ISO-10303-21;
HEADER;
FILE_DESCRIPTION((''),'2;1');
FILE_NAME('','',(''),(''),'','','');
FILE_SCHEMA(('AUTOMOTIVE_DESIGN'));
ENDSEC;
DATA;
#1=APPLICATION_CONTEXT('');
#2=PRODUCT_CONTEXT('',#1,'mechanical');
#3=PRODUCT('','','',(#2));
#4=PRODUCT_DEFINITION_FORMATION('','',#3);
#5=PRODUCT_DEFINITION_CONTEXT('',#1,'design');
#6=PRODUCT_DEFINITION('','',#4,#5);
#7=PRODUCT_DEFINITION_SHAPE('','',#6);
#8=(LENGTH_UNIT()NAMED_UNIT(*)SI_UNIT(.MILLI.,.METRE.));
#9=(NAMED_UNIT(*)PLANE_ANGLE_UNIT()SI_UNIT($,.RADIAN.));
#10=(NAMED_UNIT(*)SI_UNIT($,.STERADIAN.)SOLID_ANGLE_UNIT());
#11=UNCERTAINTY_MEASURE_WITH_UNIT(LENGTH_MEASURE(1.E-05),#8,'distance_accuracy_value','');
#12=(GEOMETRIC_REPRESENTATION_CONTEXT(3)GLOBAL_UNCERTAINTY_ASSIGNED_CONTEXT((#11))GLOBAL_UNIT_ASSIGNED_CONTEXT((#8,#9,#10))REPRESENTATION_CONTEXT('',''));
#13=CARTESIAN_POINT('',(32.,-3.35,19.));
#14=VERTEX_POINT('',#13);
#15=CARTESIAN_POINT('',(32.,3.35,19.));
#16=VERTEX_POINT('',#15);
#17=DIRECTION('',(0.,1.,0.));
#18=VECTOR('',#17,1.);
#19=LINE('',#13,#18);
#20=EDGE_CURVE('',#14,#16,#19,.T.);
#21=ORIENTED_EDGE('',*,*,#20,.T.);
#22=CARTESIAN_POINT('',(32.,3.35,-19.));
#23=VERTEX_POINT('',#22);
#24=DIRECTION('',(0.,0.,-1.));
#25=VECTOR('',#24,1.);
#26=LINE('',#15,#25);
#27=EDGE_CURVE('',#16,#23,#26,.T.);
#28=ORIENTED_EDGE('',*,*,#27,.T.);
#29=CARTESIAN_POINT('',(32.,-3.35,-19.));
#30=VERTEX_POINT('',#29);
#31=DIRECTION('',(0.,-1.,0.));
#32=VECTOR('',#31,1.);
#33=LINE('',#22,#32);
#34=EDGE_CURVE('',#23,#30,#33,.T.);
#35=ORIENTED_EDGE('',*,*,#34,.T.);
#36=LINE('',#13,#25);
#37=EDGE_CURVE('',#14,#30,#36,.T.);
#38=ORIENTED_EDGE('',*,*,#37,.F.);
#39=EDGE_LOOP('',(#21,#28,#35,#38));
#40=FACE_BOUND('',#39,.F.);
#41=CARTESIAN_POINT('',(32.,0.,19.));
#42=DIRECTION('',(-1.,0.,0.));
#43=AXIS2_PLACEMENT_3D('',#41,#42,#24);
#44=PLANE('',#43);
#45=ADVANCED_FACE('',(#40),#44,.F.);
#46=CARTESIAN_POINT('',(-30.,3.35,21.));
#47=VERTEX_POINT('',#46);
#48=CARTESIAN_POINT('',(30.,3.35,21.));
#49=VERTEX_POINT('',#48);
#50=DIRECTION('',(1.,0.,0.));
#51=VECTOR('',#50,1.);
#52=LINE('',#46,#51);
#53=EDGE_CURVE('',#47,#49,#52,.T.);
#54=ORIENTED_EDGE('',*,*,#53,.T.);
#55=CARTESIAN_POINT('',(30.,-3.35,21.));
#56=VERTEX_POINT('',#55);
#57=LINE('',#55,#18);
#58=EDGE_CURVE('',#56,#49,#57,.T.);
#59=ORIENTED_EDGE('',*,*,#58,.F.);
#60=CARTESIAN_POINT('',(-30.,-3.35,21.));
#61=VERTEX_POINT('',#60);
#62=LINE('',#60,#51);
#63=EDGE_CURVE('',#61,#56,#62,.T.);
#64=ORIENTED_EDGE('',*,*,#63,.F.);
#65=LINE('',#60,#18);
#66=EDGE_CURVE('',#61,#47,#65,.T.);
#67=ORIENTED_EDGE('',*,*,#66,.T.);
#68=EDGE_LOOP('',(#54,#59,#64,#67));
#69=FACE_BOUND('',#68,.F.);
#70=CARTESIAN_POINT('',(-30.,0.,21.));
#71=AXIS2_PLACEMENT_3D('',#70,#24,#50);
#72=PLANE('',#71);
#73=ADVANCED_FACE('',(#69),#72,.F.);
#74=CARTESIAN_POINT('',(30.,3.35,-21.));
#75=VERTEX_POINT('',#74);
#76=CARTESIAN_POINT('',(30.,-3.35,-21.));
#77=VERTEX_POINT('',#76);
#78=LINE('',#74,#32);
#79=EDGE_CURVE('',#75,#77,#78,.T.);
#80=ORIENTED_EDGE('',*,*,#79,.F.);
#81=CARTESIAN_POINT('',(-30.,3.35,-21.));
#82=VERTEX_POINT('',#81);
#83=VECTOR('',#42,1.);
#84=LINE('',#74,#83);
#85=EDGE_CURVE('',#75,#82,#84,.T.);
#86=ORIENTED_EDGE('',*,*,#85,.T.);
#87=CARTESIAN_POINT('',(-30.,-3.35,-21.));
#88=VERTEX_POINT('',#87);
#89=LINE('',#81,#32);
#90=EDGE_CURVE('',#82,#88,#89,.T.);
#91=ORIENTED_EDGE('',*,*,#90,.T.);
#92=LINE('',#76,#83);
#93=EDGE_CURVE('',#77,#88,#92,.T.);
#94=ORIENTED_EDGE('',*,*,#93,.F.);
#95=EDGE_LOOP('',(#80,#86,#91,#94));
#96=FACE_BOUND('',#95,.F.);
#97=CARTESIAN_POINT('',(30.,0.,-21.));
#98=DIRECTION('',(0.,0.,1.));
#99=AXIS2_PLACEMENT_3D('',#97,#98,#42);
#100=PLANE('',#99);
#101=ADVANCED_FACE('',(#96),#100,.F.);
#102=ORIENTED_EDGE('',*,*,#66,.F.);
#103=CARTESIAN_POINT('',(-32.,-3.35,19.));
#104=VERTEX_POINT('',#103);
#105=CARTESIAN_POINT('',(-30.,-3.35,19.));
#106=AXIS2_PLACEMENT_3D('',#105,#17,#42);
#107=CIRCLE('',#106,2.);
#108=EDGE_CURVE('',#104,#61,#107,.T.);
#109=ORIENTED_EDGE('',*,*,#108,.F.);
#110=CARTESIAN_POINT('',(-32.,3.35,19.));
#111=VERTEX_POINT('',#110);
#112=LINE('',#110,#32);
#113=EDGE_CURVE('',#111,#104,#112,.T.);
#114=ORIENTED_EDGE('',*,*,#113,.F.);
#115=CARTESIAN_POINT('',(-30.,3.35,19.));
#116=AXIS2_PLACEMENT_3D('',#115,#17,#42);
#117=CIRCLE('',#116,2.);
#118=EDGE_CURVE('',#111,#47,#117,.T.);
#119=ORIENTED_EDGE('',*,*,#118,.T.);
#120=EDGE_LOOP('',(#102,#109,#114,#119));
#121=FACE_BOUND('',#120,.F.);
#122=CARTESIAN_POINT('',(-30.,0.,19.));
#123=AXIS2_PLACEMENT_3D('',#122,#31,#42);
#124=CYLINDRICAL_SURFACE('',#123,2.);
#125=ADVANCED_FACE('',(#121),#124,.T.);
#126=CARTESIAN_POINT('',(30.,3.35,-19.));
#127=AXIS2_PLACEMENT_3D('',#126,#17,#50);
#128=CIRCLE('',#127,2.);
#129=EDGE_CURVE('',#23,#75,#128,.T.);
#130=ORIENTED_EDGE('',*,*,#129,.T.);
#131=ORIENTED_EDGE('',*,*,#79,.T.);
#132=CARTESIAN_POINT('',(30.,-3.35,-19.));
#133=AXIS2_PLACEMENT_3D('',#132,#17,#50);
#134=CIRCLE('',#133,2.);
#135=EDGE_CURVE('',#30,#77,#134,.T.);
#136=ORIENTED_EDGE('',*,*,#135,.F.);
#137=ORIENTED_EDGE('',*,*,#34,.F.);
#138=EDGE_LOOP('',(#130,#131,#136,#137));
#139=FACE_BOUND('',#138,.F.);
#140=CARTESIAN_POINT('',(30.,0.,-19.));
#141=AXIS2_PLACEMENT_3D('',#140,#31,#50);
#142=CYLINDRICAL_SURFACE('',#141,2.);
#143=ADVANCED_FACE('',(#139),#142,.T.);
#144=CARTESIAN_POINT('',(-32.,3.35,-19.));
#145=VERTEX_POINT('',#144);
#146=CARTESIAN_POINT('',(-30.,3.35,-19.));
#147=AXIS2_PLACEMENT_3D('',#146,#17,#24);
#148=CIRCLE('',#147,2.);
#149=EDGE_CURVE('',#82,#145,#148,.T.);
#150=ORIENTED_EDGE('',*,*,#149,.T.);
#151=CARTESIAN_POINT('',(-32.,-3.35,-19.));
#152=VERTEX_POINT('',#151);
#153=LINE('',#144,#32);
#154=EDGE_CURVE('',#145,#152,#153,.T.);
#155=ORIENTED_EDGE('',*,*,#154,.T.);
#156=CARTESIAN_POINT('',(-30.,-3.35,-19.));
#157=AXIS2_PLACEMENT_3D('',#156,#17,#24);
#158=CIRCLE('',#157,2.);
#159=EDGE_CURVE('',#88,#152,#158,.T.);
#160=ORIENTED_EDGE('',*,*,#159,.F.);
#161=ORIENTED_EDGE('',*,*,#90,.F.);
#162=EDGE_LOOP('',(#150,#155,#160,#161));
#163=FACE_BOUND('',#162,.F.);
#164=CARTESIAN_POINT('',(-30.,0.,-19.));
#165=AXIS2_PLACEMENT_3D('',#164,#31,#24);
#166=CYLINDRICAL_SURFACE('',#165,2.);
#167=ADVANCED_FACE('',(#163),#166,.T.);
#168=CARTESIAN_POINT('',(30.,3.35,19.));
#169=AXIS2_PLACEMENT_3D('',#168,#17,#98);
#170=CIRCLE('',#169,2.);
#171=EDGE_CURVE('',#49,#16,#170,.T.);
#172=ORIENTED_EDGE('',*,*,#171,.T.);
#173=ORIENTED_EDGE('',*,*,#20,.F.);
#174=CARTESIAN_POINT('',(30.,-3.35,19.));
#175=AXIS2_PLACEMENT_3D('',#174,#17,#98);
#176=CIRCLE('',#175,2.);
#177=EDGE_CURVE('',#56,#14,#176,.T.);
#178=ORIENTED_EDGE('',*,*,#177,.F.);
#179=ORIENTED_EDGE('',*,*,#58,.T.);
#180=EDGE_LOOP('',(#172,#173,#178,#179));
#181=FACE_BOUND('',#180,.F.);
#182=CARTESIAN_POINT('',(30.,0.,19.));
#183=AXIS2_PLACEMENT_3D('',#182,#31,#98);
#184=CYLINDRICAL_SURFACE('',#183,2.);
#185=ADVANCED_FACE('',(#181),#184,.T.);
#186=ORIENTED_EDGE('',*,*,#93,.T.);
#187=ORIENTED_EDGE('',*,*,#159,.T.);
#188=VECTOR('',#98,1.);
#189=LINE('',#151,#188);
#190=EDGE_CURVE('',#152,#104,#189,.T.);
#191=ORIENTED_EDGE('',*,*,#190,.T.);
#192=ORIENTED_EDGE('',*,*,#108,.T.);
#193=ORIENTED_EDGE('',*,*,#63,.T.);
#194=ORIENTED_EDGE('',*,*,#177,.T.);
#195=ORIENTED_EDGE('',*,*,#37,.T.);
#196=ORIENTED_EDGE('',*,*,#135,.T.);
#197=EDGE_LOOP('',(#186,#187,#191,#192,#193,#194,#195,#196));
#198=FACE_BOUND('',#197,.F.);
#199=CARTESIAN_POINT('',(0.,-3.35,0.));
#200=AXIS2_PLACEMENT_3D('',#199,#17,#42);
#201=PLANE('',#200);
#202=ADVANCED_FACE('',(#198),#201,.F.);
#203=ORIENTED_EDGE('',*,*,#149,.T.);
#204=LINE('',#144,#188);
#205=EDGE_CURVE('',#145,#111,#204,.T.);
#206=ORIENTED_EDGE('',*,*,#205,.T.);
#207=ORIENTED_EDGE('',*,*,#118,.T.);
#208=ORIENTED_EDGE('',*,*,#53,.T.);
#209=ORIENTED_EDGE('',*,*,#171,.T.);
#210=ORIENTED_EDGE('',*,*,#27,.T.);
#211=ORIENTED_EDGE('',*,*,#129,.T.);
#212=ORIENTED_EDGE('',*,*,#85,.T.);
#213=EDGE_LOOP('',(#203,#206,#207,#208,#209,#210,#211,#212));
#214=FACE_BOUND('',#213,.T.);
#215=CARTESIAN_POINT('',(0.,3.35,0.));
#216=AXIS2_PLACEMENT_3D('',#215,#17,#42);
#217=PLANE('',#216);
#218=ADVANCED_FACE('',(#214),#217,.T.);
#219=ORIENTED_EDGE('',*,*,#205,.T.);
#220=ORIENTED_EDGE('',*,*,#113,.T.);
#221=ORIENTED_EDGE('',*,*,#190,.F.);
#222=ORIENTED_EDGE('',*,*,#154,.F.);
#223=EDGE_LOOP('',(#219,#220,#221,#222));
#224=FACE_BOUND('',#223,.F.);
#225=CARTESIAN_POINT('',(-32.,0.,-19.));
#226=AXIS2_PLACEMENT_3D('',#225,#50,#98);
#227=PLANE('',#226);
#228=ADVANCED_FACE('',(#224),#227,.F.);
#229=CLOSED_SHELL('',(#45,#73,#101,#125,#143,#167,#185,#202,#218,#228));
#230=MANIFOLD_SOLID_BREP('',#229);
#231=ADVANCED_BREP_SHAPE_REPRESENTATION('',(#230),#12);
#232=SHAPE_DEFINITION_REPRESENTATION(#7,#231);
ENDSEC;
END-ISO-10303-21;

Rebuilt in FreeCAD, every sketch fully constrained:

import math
import FreeCAD as App
import Part
import Sketcher

V = App.Vector
Q = App.Units.Quantity

doc = App.newDocument("Part")
body = doc.addObject("PartDesign::Body", "Body")

sketch1 = body.newObject("Sketcher::SketchObject", "Sketch")
sketch1.AttachmentSupport = (doc.getObject("XZ_Plane"), [""])
sketch1.MapMode = "FlatFace"
sketch1.addGeometry([
    Part.ArcOfCircle(Part.Circle(V(-30, 19, 0), V(0, 0, 1), 2), math.radians(90), math.radians(180)),
    Part.LineSegment(V(-30, 21, 0), V(30, 21, 0)),
    Part.ArcOfCircle(Part.Circle(V(30, 19, 0), V(0, 0, 1), 2), math.radians(0), math.radians(90)),
    Part.LineSegment(V(32, 19, 0), V(32, -19, 0)),
    Part.ArcOfCircle(Part.Circle(V(30, -19, 0), V(0, 0, 1), 2), math.radians(-90), math.radians(0)),
    Part.LineSegment(V(30, -21, 0), V(-30, -21, 0)),
    Part.ArcOfCircle(Part.Circle(V(-30, -19, 0), V(0, 0, 1), 2), math.radians(180), math.radians(270)),
    Part.LineSegment(V(-32, -19, 0), V(-32, 19, 0)),
], False)
sketch1.addConstraint([
    Sketcher.Constraint("Tangent", 0, 1, 1, 1),
    Sketcher.Constraint("Tangent", 1, 2, 2, 2),
    Sketcher.Constraint("Tangent", 2, 1, 3, 1),
    Sketcher.Constraint("Tangent", 3, 2, 4, 2),
    Sketcher.Constraint("Tangent", 4, 1, 5, 1),
    Sketcher.Constraint("Tangent", 5, 2, 6, 2),
    Sketcher.Constraint("Tangent", 6, 1, 7, 1),
    Sketcher.Constraint("Tangent", 7, 2, 0, 2),
    Sketcher.Constraint("Horizontal", 1),
    Sketcher.Constraint("Vertical", 3),
    Sketcher.Constraint("Horizontal", 5),
    Sketcher.Constraint("Vertical", 7),
    Sketcher.Constraint("Equal", 0, 2),
    Sketcher.Constraint("Equal", 2, 4),
    Sketcher.Constraint("Equal", 4, 6),
    Sketcher.Constraint("Symmetric", 0, 3, 4, 3, -1, 1),
    Sketcher.Constraint("Radius", 0, Q("2 mm")),
    Sketcher.Constraint("DistanceY", 4, 1, 1, 2, Q("42 mm")),
    Sketcher.Constraint("DistanceX", 1, 1, 1, 2, Q("60 mm")),
])
pad1 = body.newObject("PartDesign::Pad", "Pad")
pad1.Profile = sketch1
pad1.Length = 6.7
pad1.Midplane = True

doc.recompute()
